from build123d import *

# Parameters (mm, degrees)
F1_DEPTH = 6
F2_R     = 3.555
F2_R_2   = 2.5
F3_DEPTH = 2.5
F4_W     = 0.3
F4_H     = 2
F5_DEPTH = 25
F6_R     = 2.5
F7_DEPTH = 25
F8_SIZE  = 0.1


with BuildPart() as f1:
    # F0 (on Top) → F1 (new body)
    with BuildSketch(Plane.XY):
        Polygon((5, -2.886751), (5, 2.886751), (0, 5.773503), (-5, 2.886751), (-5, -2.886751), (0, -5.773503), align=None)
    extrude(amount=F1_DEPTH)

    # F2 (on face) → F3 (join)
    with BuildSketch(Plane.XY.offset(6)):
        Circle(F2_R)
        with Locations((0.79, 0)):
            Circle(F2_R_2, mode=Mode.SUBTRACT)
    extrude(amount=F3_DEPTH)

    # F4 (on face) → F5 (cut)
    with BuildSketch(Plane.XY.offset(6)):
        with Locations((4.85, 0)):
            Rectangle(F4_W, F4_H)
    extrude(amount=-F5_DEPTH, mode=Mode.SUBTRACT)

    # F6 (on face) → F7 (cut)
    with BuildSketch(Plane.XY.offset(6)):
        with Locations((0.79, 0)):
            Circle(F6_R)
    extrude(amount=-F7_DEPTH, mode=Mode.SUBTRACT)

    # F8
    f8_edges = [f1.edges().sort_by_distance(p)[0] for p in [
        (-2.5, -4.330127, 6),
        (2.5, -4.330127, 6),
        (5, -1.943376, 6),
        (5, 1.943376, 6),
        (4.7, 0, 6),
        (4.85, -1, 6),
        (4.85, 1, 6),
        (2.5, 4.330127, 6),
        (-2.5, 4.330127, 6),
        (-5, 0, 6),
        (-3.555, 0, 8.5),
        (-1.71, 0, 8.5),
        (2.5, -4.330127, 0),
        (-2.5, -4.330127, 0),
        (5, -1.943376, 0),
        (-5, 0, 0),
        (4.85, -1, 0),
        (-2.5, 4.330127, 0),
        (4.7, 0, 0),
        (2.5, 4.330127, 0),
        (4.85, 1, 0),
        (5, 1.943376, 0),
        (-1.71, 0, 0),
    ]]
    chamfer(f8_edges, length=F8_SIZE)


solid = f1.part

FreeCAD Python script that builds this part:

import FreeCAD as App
import Part
import Sketcher

V = App.Vector
Q = App.Units.Quantity


def edges_at(feature, points):
    """Names of the edges that pass closest to the given points."""
    edges = feature.Shape.Edges
    near = lambda p: min(range(len(edges)), key=lambda i: edges[i].distToShape(Part.Vertex(*p))[0])
    return sorted({f"Edge{near(p) + 1}" for p in points})


def add_polygon(sketch, points):
    """Adds a closed chain of lines whose ends are joined by coincident constraints."""
    first, n = sketch.GeometryCount, len(points)
    for a, b in zip(points, points[1:] + points[:1]):
        sketch.addGeometry(Part.LineSegment(App.Vector(*a, 0), App.Vector(*b, 0)), False)
    for i in range(n):
        sketch.addConstraint(Sketcher.Constraint("Coincident", first + i, 2, first + (i + 1) % n, 1))

doc = App.newDocument("Part")
body = doc.addObject("PartDesign::Body", "Body")

# Sketch on XY plane
sketch1 = doc.addObject("Sketcher::SketchObject", "Sketch")
body.addObject(sketch1)
sketch1.AttachmentSupport = (doc.XY_Plane, [""])
sketch1.MapMode = "FlatFace"
add_polygon(sketch1, [(5, -2.886751), (5, 2.886751), (0, 5.773503), (-5, 2.886751), (-5, -2.886751), (0, -5.773503)])  # lines 0-5
sketch1.addConstraint([
    Sketcher.Constraint("Vertical", 0),
    Sketcher.Constraint("Vertical", 3),
    Sketcher.Constraint("Symmetric", 0, 2, 3, 2, -1, 1),
    Sketcher.Constraint("Symmetric", 1, 2, 4, 2, -1, 1),
    Sketcher.Constraint("PointOnObject", 1, 2, -2),
    Sketcher.Constraint("Parallel", 2, 5),
    Sketcher.Constraint("Horizontal", 0, 2, 2, 2),
    Sketcher.Constraint("Angle", 1, Q("149.999994 deg")),
    Sketcher.Constraint("DistanceX", -1, 1, 0, 2, 5.0),
    Sketcher.Constraint("DistanceY", 0, 1, 0, 2, 5.773502),
])
pad1 = doc.addObject("PartDesign::Pad", "Pad")
body.addObject(pad1)
pad1.Profile = sketch1
pad1.Length = 6

# Sketch on XY plane
sketch2 = doc.addObject("Sketcher::SketchObject", "Sketch001")
body.addObject(sketch2)
sketch2.AttachmentSupport = (doc.XY_Plane, [""])
sketch2.MapMode = "FlatFace"
sketch2.AttachmentOffset = App.Placement(V(0, 0, 6), App.Rotation())
sketch2.addGeometry([
    Part.Circle(V(0, 0, 0), V(0, 0, 1), 3.555),
    Part.Circle(V(0.79, 0, 0), V(0, 0, 1), 2.5),
], False)
sketch2.addConstraint([
    Sketcher.Constraint("Coincident", 0, 3, -1, 1),
    Sketcher.Constraint("PointOnObject", 1, 3, -1),
    Sketcher.Constraint("Diameter", 1, 5.0),
    Sketcher.Constraint("Diameter", 0, 7.11),
    Sketcher.Constraint("DistanceX", -1, 1, 1, 3, 0.79),
])
pad2 = doc.addObject("PartDesign::Pad", "Pad001")
body.addObject(pad2)
pad2.Profile = sketch2
pad2.Length = 2.5

# Sketch on XY plane
sketch3 = doc.addObject("Sketcher::SketchObject", "Sketch002")
body.addObject(sketch3)
sketch3.AttachmentSupport = (doc.XY_Plane, [""])
sketch3.MapMode = "FlatFace"
sketch3.AttachmentOffset = App.Placement(V(0, 0, 6), App.Rotation())
add_polygon(sketch3, [(4.7, 1), (4.7, -1), (5, -1), (5, 1)])  # lines 0-3
sketch3.addConstraint([
    Sketcher.Constraint("Vertical", 0),
    Sketcher.Constraint("Horizontal", 1),
    Sketcher.Constraint("Vertical", 2),
    Sketcher.Constraint("Horizontal", 3),
    Sketcher.Constraint("DistanceY", 0, 2, 0, 1, 2.0),
    Sketcher.Constraint("DistanceX", 1, 1, 1, 2, 0.3),
    Sketcher.Constraint("DistanceY", 0, 2, -1, 1, 1.0),
    Sketcher.Constraint("DistanceX", -1, 1, 1, 2, 5.0),
])
pocket1 = doc.addObject("PartDesign::Pocket", "Pocket")
body.addObject(pocket1)
pocket1.Profile = sketch3
pocket1.Length = 25

# Sketch on XY plane
sketch4 = doc.addObject("Sketcher::SketchObject", "Sketch003")
body.addObject(sketch4)
sketch4.AttachmentSupport = (doc.XY_Plane, [""])
sketch4.MapMode = "FlatFace"
sketch4.AttachmentOffset = App.Placement(V(0, 0, 6), App.Rotation())
sketch4.addGeometry(Part.Circle(V(0.79, 0, 0), V(0, 0, 1), 2.5), False)
sketch4.addConstraint([
    Sketcher.Constraint("PointOnObject", 0, 3, -1),
    Sketcher.Constraint("Diameter", 0, 5.0),
    Sketcher.Constraint("DistanceX", -1, 1, 0, 3, 0.79),
])
pocket2 = doc.addObject("PartDesign::Pocket", "Pocket001")
body.addObject(pocket2)
pocket2.Profile = sketch4
pocket2.Length = 25
doc.recompute()

chamfer = doc.addObject("PartDesign::Chamfer", "Chamfer")
body.addObject(chamfer)
chamfer.Base = (pocket2, edges_at(pocket2, [
    (-2.5, -4.33, 6),
    (2.5, -4.33, 6),
    (5, -1.943, 6),
    (5, 1.943, 6),
    (4.7, 0, 6),
    (4.85, -1, 6),
    (4.85, 1, 6),
    (2.5, 4.33, 6),
    (-2.5, 4.33, 6),
    (-5, 0, 6),
    (-3.555, 0, 8.5),
    (-1.71, 0, 8.5),
    (2.5, -4.33, 0),
    (-2.5, -4.33, 0),
    (5, -1.943, 0),
    (-5, 0, 0),
    (4.85, -1, 0),
    (-2.5, 4.33, 0),
    (4.7, 0, 0),
    (2.5, 4.33, 0),
    (4.85, 1, 0),
    (5, 1.943, 0),
    (-1.71, 0, 0),
]))
chamfer.Size = 0.1

doc.recompute()
